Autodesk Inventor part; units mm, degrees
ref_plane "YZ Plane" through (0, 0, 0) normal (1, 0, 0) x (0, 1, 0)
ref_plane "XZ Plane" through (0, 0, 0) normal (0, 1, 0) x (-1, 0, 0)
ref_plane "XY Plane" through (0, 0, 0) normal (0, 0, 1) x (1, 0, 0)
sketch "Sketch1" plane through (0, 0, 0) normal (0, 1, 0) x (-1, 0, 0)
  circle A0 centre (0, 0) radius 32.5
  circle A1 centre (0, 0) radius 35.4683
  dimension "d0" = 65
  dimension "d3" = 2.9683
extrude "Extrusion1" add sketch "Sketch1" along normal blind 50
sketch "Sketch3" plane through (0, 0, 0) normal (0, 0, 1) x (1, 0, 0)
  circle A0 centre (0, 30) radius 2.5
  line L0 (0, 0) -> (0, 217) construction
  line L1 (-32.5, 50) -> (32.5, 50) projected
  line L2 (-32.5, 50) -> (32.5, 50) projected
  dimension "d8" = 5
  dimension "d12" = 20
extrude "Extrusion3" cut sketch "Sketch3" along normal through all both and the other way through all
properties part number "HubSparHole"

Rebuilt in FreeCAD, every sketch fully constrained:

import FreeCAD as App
import Part
import Sketcher
from FreeCAD import Vector
Q = App.Units.Quantity

doc = App.newDocument("Part")
body = doc.addObject("PartDesign::Body", "Body")

sketch1 = doc.addObject("Sketcher::SketchObject", "Sketch")
body.addObject(sketch1)
sketch1.AttachmentSupport = (doc.XZ_Plane, [""])
sketch1.MapMode = "FlatFace"
sketch1.addGeometry(Part.Circle(Vector(0, 0, 0), Vector(0, 0, 1), 35), False)
sketch1.addGeometry(Part.Circle(Vector(0, 0, 0), Vector(0, 0, 1), 32), False)
sketch1.addConstraint(Sketcher.Constraint("Coincident", 0, 3, -1, 1))
sketch1.addConstraint(Sketcher.Constraint("Coincident", 1, 3, -1, 1))
sketch1.addConstraint(Sketcher.Constraint("Diameter", 1, Q("65 mm")))
sketch1.addConstraint(Sketcher.Constraint("Diameter", 0, Q("70.9366 mm")))
pad1 = doc.addObject("PartDesign::Pad", "Pad")
body.addObject(pad1)
pad1.Profile = sketch1
pad1.Length = 50
pad1.Reversed = True

sketch2 = doc.addObject("Sketcher::SketchObject", "Sketch001")
body.addObject(sketch2)
sketch2.AttachmentSupport = (doc.XY_Plane, [""])
sketch2.MapMode = "FlatFace"
sketch2.addGeometry(Part.Circle(Vector(0, 30, 0), Vector(0, 0, 1), 2.5), False)
sketch2.addConstraint(Sketcher.Constraint("PointOnObject", 0, 3, -2))
sketch2.addConstraint(Sketcher.Constraint("Diameter", 0, Q("5 mm")))
sketch2.addConstraint(Sketcher.Constraint("DistanceY", -1, 1, 0, 3, Q("30 mm")))
pocket1 = doc.addObject("PartDesign::Pocket", "Pocket")
body.addObject(pocket1)
pocket1.Profile = sketch2
pocket1.Type = "ThroughAll"
pocket1.Midplane = True

doc.recompute()
